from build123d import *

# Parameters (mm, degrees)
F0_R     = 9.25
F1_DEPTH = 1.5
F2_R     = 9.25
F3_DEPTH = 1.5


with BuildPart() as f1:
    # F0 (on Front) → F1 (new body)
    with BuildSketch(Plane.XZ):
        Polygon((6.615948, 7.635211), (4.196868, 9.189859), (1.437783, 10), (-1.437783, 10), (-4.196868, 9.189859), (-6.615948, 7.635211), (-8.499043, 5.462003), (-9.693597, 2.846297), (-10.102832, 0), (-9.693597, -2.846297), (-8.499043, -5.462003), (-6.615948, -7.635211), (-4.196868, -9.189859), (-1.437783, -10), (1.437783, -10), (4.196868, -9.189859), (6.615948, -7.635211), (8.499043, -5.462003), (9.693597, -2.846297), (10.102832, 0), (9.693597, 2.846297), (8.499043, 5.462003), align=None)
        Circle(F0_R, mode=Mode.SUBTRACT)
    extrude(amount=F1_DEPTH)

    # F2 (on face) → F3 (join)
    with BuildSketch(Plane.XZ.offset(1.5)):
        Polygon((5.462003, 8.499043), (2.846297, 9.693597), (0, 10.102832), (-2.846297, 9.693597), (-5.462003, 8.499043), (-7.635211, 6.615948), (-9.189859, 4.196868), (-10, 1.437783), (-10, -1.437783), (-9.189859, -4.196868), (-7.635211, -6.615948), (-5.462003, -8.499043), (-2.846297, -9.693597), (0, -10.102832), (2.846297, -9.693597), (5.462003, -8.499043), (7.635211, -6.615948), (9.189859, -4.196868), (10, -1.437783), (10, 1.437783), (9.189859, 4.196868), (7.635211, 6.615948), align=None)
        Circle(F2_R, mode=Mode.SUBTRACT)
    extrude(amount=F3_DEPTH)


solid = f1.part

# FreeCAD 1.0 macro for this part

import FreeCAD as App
import Part
import Sketcher

V = App.Vector

doc = App.newDocument("Part")
params = doc.addObject("Spreadsheet::Sheet", "Params")
for row, (alias, value) in enumerate([
    ("sketch1_diameter", "18.5 mm"),
    ("pad1_length", "1.5 mm"),
    ("sketch2_diameter", "18.5 mm"),
    ("pad2_length", "1.5 mm"),
], start=1):
    params.set(f"A{row}", alias)
    params.set(f"B{row}", "=" + value)
    params.setAlias(f"B{row}", alias)

body = doc.addObject("PartDesign::Body", "Body")

sketch1 = body.newObject("Sketcher::SketchObject", "Sketch")
sketch1.AttachmentSupport = (doc.getObject("XZ_Plane"), [""])
sketch1.MapMode = "FlatFace"
sketch1.addGeometry([
    Part.LineSegment(V(6.6, 7.6, 0), V(4.2, 9.2, 0)),
    Part.LineSegment(V(4.2, 9.2, 0), V(1.4, 10, 0)),
    Part.LineSegment(V(1.4, 10, 0), V(-1.4, 10, 0)),
    Part.LineSegment(V(-1.4, 10, 0), V(-4.2, 9.2, 0)),
    Part.LineSegment(V(-4.2, 9.2, 0), V(-6.6, 7.6, 0)),
    Part.LineSegment(V(-6.6, 7.6, 0), V(-8.5, 5.5, 0)),
    Part.LineSegment(V(-8.5, 5.5, 0), V(-9.7, 2.8, 0)),
    Part.LineSegment(V(-9.7, 2.8, 0), V(-10.1, 0, 0)),
    Part.LineSegment(V(-10.1, 0, 0), V(-9.7, -2.8, 0)),
    Part.LineSegment(V(-9.7, -2.8, 0), V(-8.5, -5.5, 0)),
    Part.LineSegment(V(-8.5, -5.5, 0), V(-6.6, -7.6, 0)),
    Part.LineSegment(V(-6.6, -7.6, 0), V(-4.2, -9.2, 0)),
    Part.LineSegment(V(-4.2, -9.2, 0), V(-1.4, -10, 0)),
    Part.LineSegment(V(-1.4, -10, 0), V(1.4, -10, 0)),
    Part.LineSegment(V(1.4, -10, 0), V(4.2, -9.2, 0)),
    Part.LineSegment(V(4.2, -9.2, 0), V(6.6, -7.6, 0)),
    Part.LineSegment(V(6.6, -7.6, 0), V(8.5, -5.5, 0)),
    Part.LineSegment(V(8.5, -5.5, 0), V(9.7, -2.8, 0)),
    Part.LineSegment(V(9.7, -2.8, 0), V(10.1, 0, 0)),
    Part.LineSegment(V(10.1, 0, 0), V(9.7, 2.8, 0)),
    Part.LineSegment(V(9.7, 2.8, 0), V(8.5, 5.5, 0)),
    Part.LineSegment(V(8.5, 5.5, 0), V(6.6, 7.6, 0)),
    Part.Circle(V(0, 0, 0), V(0, 0, 1), 9.2),
], False)
sketch1.addConstraint([
    Sketcher.Constraint("Coincident", 0, 2, 1, 1),
    Sketcher.Constraint("Coincident", 1, 2, 2, 1),
    Sketcher.Constraint("Coincident", 2, 2, 3, 1),
    Sketcher.Constraint("Coincident", 3, 2, 4, 1),
    Sketcher.Constraint("Coincident", 4, 2, 5, 1),
    Sketcher.Constraint("Coincident", 5, 2, 6, 1),
    Sketcher.Constraint("Coincident", 6, 2, 7, 1),
    Sketcher.Constraint("Coincident", 7, 2, 8, 1),
    Sketcher.Constraint("Coincident", 8, 2, 9, 1),
    Sketcher.Constraint("Coincident", 9, 2, 10, 1),
    Sketcher.Constraint("Coincident", 10, 2, 11, 1),
    Sketcher.Constraint("Coincident", 11, 2, 12, 1),
    Sketcher.Constraint("Coincident", 12, 2, 13, 1),
    Sketcher.Constraint("Coincident", 13, 2, 14, 1),
    Sketcher.Constraint("Coincident", 14, 2, 15, 1),
    Sketcher.Constraint("Coincident", 15, 2, 16, 1),
    Sketcher.Constraint("Coincident", 16, 2, 17, 1),
    Sketcher.Constraint("Coincident", 17, 2, 18, 1),
    Sketcher.Constraint("Coincident", 18, 2, 19, 1),
    Sketcher.Constraint("Coincident", 19, 2, 20, 1),
    Sketcher.Constraint("Coincident", 20, 2, 21, 1),
    Sketcher.Constraint("Coincident", 21, 2, 0, 1),
    Sketcher.Constraint("Horizontal", 2),
    Sketcher.Constraint("Horizontal", 13),
    Sketcher.Constraint("Coincident", 22, 3, -1, 1),
    Sketcher.Constraint("Symmetric", 0, 2, 11, 2, -1, 1),
    Sketcher.Constraint("Symmetric", 1, 2, 12, 2, -1, 1),
    Sketcher.Constraint("Symmetric", 3, 2, 14, 2, -1, 1),
    Sketcher.Constraint("Symmetric", 4, 2, 15, 2, -1, 1),
    Sketcher.Constraint("Symmetric", 5, 2, 16, 2, -1, 1),
    Sketcher.Constraint("Symmetric", 6, 2, 17, 2, -1, 1),
    Sketcher.Constraint("Symmetric", 7, 2, 18, 2, -1, 1),
    Sketcher.Constraint("Symmetric", 8, 2, 19, 2, -1, 1),
    Sketcher.Constraint("Symmetric", 9, 2, 20, 2, -1, 1),
    Sketcher.Constraint("Symmetric", 10, 2, 21, 2, -1, 1),
    Sketcher.Constraint("Symmetric", 0, 2, 3, 2, -2),
    Sketcher.Constraint("Symmetric", 10, 2, 15, 2, -2),
    Sketcher.Constraint("Symmetric", 9, 2, 16, 2, -2),
    Sketcher.Constraint("Symmetric", 8, 2, 17, 2, -2),
    Sketcher.Constraint("PointOnObject", 7, 2, -1),
    Sketcher.Constraint("Parallel", 3, 14),
    Sketcher.Constraint("Vertical", 2, 2, 12, 2),
    Sketcher.Constraint("Equal", 0, 1),
    Sketcher.Constraint("Equal", 4, 5),
    Sketcher.Constraint("Equal", 5, 6),
    Sketcher.Constraint("Equal", 6, 7),
    Sketcher.Constraint("Diameter", 22, 18.5),
    Sketcher.Constraint("DistanceY", -1, 1, 1, 2, 10.0),
    Sketcher.Constraint("DistanceY", 8, 2, 5, 2, 8.3083),
    Sketcher.Constraint("DistanceX", 2, 2, 2, 1, 2.875566),
    Sketcher.Constraint("DistanceX", -1, 1, 0, 2, 4.196868),
    Sketcher.Constraint("DistanceY", -1, 1, 0, 2, 9.189859),
    Sketcher.Constraint("DistanceX", 4, 2, -1, 1, 6.615948),
    Sketcher.Constraint("DistanceX", 7, 2, -1, 1, 10.102832),
])
sketch1.setExpression("Constraints[46]", "Params.sketch1_diameter")
pad1 = body.newObject("PartDesign::Pad", "Pad")
pad1.Profile = sketch1
pad1.setExpression("Length", "Params.pad1_length")

sketch2 = body.newObject("Sketcher::SketchObject", "Sketch001")
sketch2.AttachmentSupport = (doc.getObject("XZ_Plane"), [""])
sketch2.MapMode = "FlatFace"
sketch2.AttachmentOffset = App.Placement(V(0, 0, 1.5), App.Rotation())
sketch2.addGeometry([
    Part.LineSegment(V(5.5, 8.5, 0), V(2.8, 9.7, 0)),
    Part.LineSegment(V(2.8, 9.7, 0), V(0, 10.1, 0)),
    Part.LineSegment(V(0, 10.1, 0), V(-2.8, 9.7, 0)),
    Part.LineSegment(V(-2.8, 9.7, 0), V(-5.5, 8.5, 0)),
    Part.LineSegment(V(-5.5, 8.5, 0), V(-7.6, 6.6, 0)),
    Part.LineSegment(V(-7.6, 6.6, 0), V(-9.2, 4.2, 0)),
    Part.LineSegment(V(-9.2, 4.2, 0), V(-10, 1.4, 0)),
    Part.LineSegment(V(-10, 1.4, 0), V(-10, -1.4, 0)),
    Part.LineSegment(V(-10, -1.4, 0), V(-9.2, -4.2, 0)),
    Part.LineSegment(V(-9.2, -4.2, 0), V(-7.6, -6.6, 0)),
    Part.LineSegment(V(-7.6, -6.6, 0), V(-5.5, -8.5, 0)),
    Part.LineSegment(V(-5.5, -8.5, 0), V(-2.8, -9.7, 0)),
    Part.LineSegment(V(-2.8, -9.7, 0), V(0, -10.1, 0)),
    Part.LineSegment(V(0, -10.1, 0), V(2.8, -9.7, 0)),
    Part.LineSegment(V(2.8, -9.7, 0), V(5.5, -8.5, 0)),
    Part.LineSegment(V(5.5, -8.5, 0), V(7.6, -6.6, 0)),
    Part.LineSegment(V(7.6, -6.6, 0), V(9.2, -4.2, 0)),
    Part.LineSegment(V(9.2, -4.2, 0), V(10, -1.4, 0)),
    Part.LineSegment(V(10, -1.4, 0), V(10, 1.4, 0)),
    Part.LineSegment(V(10, 1.4, 0), V(9.2, 4.2, 0)),
    Part.LineSegment(V(9.2, 4.2, 0), V(7.6, 6.6, 0)),
    Part.LineSegment(V(7.6, 6.6, 0), V(5.5, 8.5, 0)),
    Part.Circle(V(0, 0, 0), V(0, 0, 1), 9.2),
], False)
sketch2.addConstraint([
    Sketcher.Constraint("Coincident", 0, 2, 1, 1),
    Sketcher.Constraint("Coincident", 1, 2, 2, 1),
    Sketcher.Constraint("Coincident", 2, 2, 3, 1),
    Sketcher.Constraint("Coincident", 3, 2, 4, 1),
    Sketcher.Constraint("Coincident", 4, 2, 5, 1),
    Sketcher.Constraint("Coincident", 5, 2, 6, 1),
    Sketcher.Constraint("Coincident", 6, 2, 7, 1),
    Sketcher.Constraint("Coincident", 7, 2, 8, 1),
    Sketcher.Constraint("Coincident", 8, 2, 9, 1),
    Sketcher.Constraint("Coincident", 9, 2, 10, 1),
    Sketcher.Constraint("Coincident", 10, 2, 11, 1),
    Sketcher.Constraint("Coincident", 11, 2, 12, 1),
    Sketcher.Constraint("Coincident", 12, 2, 13, 1),
    Sketcher.Constraint("Coincident", 13, 2, 14, 1),
    Sketcher.Constraint("Coincident", 14, 2, 15, 1),
    Sketcher.Constraint("Coincident", 15, 2, 16, 1),
    Sketcher.Constraint("Coincident", 16, 2, 17, 1),
    Sketcher.Constraint("Coincident", 17, 2, 18, 1),
    Sketcher.Constraint("Coincident", 18, 2, 19, 1),
    Sketcher.Constraint("Coincident", 19, 2, 20, 1),
    Sketcher.Constraint("Coincident", 20, 2, 21, 1),
    Sketcher.Constraint("Coincident", 21, 2, 0, 1),
    Sketcher.Constraint("Vertical", 7),
    Sketcher.Constraint("Vertical", 18),
    Sketcher.Constraint("Coincident", 22, 3, -1, 1),
    Sketcher.Constraint("Symmetric", 0, 2, 11, 2, -1, 1),
    Sketcher.Constraint("Symmetric", 1, 2, 12, 2, -1, 1),
    Sketcher.Constraint("Symmetric", 2, 2, 13, 2, -1, 1),
    Sketcher.Constraint("Symmetric", 3, 2, 14, 2, -1, 1),
    Sketcher.Constraint("Symmetric", 4, 2, 15, 2, -1, 1),
    Sketcher.Constraint("Symmetric", 5, 2, 16, 2, -1, 1),
    Sketcher.Constraint("Symmetric", 6, 2, 17, 2, -1, 1),
    Sketcher.Constraint("Symmetric", 8, 2, 19, 2, -1, 1),
    Sketcher.Constraint("Symmetric", 9, 2, 20, 2, -1, 1),
    Sketcher.Constraint("Symmetric", 10, 2, 21, 2, -1, 1),
    Sketcher.Constraint("Symmetric", 0, 2, 2, 2, -2),
    Sketcher.Constraint("Symmetric", 10, 2, 14, 2, -2),
    Sketcher.Constraint("Symmetric", 9, 2, 15, 2, -2),
    Sketcher.Constraint("Symmetric", 8, 2, 16, 2, -2),
    Sketcher.Constraint("PointOnObject", 1, 2, -2),
    Sketcher.Constraint("Parallel", 8, 19),
    Sketcher.Constraint("Horizontal", 7, 2, 17, 2),
    Sketcher.Constraint("Equal", 0, 1),
    Sketcher.Constraint("Equal", 3, 4),
    Sketcher.Constraint("Equal", 4, 5),
    Sketcher.Constraint("Equal", 5, 6),
    Sketcher.Constraint("Diameter", 22, 18.5),
    Sketcher.Constraint("DistanceX", 6, 2, -1, 1, 10.0),
    Sketcher.Constraint("DistanceX", 3, 2, 0, 2, 8.3083),
    Sketcher.Constraint("DistanceY", 7, 2, 7, 1, 2.875566),
    Sketcher.Constraint("DistanceY", -1, 1, 1, 2, 10.102832),
    Sketcher.Constraint("DistanceX", 4, 2, -1, 1, 7.635211),
    Sketcher.Constraint("DistanceY", -1, 1, 4, 2, 6.615948),
    Sketcher.Constraint("DistanceX", 5, 2, -1, 1, 9.189859),
])
sketch2.setExpression("Constraints[46]", "Params.sketch2_diameter")
pad2 = body.newObject("PartDesign::Pad", "Pad001")
pad2.Profile = sketch2
pad2.setExpression("Length", "Params.pad2_length")

doc.recompute()
